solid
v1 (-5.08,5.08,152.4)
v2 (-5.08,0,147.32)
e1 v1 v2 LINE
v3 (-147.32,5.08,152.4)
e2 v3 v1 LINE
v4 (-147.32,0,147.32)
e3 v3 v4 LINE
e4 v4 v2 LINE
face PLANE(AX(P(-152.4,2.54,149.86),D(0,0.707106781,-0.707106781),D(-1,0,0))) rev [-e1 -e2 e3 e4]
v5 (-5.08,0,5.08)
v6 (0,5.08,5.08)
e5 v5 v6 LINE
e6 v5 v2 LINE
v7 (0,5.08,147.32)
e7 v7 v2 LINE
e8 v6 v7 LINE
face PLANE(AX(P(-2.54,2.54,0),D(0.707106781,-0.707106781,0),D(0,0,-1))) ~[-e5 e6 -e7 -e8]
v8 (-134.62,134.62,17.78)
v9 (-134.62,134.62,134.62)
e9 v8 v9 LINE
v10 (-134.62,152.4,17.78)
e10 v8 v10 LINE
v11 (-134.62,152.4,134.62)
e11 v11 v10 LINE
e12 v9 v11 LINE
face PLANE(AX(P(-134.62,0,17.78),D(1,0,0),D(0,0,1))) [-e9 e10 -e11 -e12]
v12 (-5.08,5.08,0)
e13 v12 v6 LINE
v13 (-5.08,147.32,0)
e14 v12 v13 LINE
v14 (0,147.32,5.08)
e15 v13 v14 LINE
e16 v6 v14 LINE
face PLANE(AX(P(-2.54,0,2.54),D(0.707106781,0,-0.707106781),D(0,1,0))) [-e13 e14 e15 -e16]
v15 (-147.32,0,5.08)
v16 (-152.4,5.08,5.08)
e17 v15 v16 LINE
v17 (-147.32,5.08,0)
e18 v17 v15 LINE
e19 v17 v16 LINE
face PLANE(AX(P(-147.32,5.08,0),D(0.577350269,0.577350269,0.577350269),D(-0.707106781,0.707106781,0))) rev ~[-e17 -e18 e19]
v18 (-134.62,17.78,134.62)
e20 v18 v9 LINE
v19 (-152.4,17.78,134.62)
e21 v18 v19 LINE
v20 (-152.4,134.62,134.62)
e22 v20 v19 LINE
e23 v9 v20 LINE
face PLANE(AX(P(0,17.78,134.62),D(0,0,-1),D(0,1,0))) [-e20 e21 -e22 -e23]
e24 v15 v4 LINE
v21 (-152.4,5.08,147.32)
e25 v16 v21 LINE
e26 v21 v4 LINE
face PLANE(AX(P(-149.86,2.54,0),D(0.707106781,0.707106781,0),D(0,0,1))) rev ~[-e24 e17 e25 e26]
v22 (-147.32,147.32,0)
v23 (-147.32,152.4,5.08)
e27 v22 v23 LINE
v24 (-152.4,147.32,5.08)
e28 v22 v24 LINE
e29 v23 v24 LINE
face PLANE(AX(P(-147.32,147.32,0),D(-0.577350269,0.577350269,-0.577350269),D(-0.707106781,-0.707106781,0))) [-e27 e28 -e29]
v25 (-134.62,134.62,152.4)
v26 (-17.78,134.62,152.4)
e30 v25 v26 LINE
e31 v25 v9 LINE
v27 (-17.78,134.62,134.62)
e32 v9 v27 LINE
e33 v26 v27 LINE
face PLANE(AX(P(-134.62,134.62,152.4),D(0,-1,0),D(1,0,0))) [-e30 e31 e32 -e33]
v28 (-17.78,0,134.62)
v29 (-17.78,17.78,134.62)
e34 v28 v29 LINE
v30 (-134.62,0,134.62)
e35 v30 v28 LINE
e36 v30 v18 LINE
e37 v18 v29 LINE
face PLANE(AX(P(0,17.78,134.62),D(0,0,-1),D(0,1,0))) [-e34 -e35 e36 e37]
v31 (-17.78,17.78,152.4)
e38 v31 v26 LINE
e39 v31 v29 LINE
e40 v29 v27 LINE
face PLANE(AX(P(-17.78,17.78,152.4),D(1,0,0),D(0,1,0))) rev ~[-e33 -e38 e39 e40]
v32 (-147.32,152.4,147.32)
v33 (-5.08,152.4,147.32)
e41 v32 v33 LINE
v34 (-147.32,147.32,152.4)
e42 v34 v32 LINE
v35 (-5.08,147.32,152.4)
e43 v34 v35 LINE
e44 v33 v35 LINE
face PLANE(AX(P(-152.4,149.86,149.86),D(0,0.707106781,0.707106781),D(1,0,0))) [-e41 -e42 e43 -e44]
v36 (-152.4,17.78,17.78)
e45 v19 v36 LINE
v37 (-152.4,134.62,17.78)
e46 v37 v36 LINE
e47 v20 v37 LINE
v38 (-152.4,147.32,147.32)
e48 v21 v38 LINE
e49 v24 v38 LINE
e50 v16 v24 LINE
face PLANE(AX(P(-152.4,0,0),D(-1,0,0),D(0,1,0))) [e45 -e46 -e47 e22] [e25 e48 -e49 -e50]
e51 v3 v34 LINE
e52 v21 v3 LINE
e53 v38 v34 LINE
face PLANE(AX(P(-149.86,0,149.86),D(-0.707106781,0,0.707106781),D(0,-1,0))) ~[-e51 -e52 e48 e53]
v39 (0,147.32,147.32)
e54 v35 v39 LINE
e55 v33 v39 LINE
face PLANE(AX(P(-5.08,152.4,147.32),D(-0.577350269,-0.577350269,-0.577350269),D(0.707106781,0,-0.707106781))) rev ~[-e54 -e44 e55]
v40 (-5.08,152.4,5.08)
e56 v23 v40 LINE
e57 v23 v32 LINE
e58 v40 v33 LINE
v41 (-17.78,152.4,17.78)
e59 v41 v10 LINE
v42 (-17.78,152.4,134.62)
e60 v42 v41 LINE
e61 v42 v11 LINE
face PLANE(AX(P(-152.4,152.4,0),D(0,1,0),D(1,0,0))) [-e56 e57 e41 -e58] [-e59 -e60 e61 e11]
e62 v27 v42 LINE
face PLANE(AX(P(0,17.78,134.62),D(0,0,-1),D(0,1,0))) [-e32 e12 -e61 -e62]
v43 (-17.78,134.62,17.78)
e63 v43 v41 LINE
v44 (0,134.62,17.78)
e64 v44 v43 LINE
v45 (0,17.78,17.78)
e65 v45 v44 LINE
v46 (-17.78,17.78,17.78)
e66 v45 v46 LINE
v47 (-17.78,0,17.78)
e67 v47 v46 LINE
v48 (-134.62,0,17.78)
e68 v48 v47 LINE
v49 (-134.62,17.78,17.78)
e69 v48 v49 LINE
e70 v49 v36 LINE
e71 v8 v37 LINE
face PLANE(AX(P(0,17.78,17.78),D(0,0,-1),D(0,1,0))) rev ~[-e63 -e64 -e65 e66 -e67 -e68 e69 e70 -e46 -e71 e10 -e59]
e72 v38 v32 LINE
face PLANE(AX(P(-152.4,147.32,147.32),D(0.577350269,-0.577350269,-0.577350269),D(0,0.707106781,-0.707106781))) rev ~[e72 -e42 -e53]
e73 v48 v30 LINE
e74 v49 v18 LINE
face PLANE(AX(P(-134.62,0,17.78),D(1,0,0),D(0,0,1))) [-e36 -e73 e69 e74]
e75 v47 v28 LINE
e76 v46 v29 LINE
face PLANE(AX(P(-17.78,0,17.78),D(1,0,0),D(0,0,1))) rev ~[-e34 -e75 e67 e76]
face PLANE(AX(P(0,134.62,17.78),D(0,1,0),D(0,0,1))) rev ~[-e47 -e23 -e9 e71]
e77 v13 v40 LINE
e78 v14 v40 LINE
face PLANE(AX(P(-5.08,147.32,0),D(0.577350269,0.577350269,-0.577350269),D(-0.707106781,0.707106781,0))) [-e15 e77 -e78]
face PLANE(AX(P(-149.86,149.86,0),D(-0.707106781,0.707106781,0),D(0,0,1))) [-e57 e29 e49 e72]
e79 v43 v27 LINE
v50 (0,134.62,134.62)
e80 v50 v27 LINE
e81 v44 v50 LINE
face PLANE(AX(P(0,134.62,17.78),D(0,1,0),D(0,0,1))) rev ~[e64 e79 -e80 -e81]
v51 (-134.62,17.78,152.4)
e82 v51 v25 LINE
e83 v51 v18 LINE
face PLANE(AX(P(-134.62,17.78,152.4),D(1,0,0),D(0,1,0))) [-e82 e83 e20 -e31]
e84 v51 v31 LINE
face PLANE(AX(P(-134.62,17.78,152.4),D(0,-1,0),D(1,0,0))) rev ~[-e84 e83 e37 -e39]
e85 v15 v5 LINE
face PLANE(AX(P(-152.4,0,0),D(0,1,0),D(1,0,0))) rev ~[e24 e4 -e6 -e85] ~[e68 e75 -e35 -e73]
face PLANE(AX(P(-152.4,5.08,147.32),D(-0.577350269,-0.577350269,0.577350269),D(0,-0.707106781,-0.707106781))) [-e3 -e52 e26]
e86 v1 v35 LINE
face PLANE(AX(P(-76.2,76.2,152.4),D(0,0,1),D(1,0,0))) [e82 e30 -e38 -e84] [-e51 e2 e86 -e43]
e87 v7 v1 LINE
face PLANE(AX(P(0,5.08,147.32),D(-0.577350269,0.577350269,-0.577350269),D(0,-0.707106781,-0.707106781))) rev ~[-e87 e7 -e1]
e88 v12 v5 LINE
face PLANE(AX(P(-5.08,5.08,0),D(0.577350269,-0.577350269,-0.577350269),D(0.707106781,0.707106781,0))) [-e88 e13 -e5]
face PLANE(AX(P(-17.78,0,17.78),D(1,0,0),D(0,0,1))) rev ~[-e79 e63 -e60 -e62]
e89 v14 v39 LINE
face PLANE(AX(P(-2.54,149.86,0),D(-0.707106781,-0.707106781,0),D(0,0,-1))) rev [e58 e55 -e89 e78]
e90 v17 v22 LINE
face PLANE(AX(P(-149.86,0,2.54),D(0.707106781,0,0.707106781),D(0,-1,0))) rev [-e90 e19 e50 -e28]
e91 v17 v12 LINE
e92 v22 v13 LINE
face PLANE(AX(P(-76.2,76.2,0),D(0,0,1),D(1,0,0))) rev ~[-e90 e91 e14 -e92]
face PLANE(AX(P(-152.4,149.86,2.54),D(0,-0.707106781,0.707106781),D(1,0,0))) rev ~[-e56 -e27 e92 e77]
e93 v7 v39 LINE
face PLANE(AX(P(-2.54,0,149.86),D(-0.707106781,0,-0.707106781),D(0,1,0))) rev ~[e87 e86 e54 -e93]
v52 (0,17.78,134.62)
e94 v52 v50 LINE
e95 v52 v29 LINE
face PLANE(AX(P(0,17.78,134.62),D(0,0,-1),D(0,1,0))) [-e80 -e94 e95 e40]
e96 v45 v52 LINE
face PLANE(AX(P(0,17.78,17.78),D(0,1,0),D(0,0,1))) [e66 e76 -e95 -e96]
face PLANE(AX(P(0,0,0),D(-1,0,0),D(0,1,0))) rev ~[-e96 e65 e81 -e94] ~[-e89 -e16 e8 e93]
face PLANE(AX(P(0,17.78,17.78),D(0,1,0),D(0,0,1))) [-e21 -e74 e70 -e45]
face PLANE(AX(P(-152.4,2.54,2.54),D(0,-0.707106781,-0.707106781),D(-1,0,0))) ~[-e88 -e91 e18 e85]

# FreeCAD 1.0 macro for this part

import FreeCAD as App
import Part
import Sketcher
from FreeCAD import Vector
Q = App.Units.Quantity


def edges_at(feature, points):
    """Names of the edges that pass closest to the given points."""
    edges = feature.Shape.Edges
    near = lambda p: min(range(len(edges)), key=lambda i: edges[i].distToShape(Part.Vertex(*p))[0])
    return sorted({f"Edge{near(p) + 1}" for p in points})

doc = App.newDocument("Part")
params = doc.addObject("Spreadsheet::Sheet", "Params")
for row, (alias, value) in enumerate([
    ("sketch1_width", "6 in"),
    ("pad1_length", "6 in"),
    ("sketch2_width", "4.6 in"),
    ("sketch3_width", "4.6 in"),
    ("sketch4_width", "4.6 in"),
    ("pocket3_length", "0.7 in"),
    ("chamfer_size", "0.2 in"),
], start=1):
    params.set(f"A{row}", alias)
    params.set(f"B{row}", "=" + value)
    params.setAlias(f"B{row}", alias)

body = doc.addObject("PartDesign::Body", "Body")

sketch1 = doc.addObject("Sketcher::SketchObject", "Sketch")
body.addObject(sketch1)
sketch1.AttachmentSupport = (doc.XY_Plane, [""])
sketch1.MapMode = "FlatFace"
sketch1.addGeometry(Part.LineSegment(Vector(-152, 152, 0), Vector(-152, 0, 0)), False)
sketch1.addGeometry(Part.LineSegment(Vector(-152, 0, 0), Vector(0, 0, 0)), False)
sketch1.addGeometry(Part.LineSegment(Vector(0, 0, 0), Vector(0, 152, 0)), False)
sketch1.addGeometry(Part.LineSegment(Vector(0, 152, 0), Vector(-152, 152, 0)), False)
sketch1.addConstraint(Sketcher.Constraint("Coincident", 0, 2, 1, 1))
sketch1.addConstraint(Sketcher.Constraint("Coincident", 1, 2, 2, 1))
sketch1.addConstraint(Sketcher.Constraint("Coincident", 2, 2, 3, 1))
sketch1.addConstraint(Sketcher.Constraint("Coincident", 3, 2, 0, 1))
sketch1.addConstraint(Sketcher.Constraint("Vertical", 0))
sketch1.addConstraint(Sketcher.Constraint("Horizontal", 1))
sketch1.addConstraint(Sketcher.Constraint("Vertical", 2))
sketch1.addConstraint(Sketcher.Constraint("Horizontal", 3))
sketch1.addConstraint(Sketcher.Constraint("Coincident", 1, 2, -1, 1))
sketch1.addConstraint(Sketcher.Constraint("Equal", 3, 0))
sketch1.addConstraint(Sketcher.Constraint("DistanceX", 1, 1, 1, 2, Q("6 in")))
sketch1.setExpression("Constraints[10]", "Params.sketch1_width")
pad1 = doc.addObject("PartDesign::Pad", "Pad")
body.addObject(pad1)
pad1.Profile = sketch1
pad1.setExpression("Length", "Params.pad1_length")

sketch2 = doc.addObject("Sketcher::SketchObject", "Sketch001")
body.addObject(sketch2)
sketch2.AttachmentSupport = (doc.XZ_Plane, [""])
sketch2.MapMode = "FlatFace"
sketch2.addGeometry(Part.LineSegment(Vector(-135, 135, 0), Vector(-135, 18, 0)), False)
sketch2.addGeometry(Part.LineSegment(Vector(-135, 18, 0), Vector(-18, 18, 0)), False)
sketch2.addGeometry(Part.LineSegment(Vector(-18, 18, 0), Vector(-18, 135, 0)), False)
sketch2.addGeometry(Part.LineSegment(Vector(-18, 135, 0), Vector(-135, 135, 0)), False)
sketch2.addConstraint(Sketcher.Constraint("Coincident", 0, 2, 1, 1))
sketch2.addConstraint(Sketcher.Constraint("Coincident", 1, 2, 2, 1))
sketch2.addConstraint(Sketcher.Constraint("Coincident", 2, 2, 3, 1))
sketch2.addConstraint(Sketcher.Constraint("Coincident", 3, 2, 0, 1))
sketch2.addConstraint(Sketcher.Constraint("Vertical", 0))
sketch2.addConstraint(Sketcher.Constraint("Horizontal", 1))
sketch2.addConstraint(Sketcher.Constraint("Vertical", 2))
sketch2.addConstraint(Sketcher.Constraint("Horizontal", 3))
sketch2.addConstraint(Sketcher.Constraint("Equal", 3, 0))
sketch2.addConstraint(Sketcher.Constraint("DistanceX", 1, 1, 1, 2, Q("4.6 in")))
sketch2.addConstraint(Sketcher.Constraint("DistanceX", 0, 2, -1, 1, Q("5.3 in")))
sketch2.addConstraint(Sketcher.Constraint("DistanceY", -1, 1, 0, 2, Q("0.7 in")))
sketch2.setExpression("Constraints[9]", "Params.sketch2_width")
pocket1 = doc.addObject("PartDesign::Pocket", "Pocket")
body.addObject(pocket1)
pocket1.Profile = sketch2
pocket1.Type = "ThroughAll"

sketch3 = doc.addObject("Sketcher::SketchObject", "Sketch002")
body.addObject(sketch3)
sketch3.AttachmentSupport = (doc.YZ_Plane, [""])
sketch3.MapMode = "FlatFace"
sketch3.addGeometry(Part.LineSegment(Vector(18, 135, 0), Vector(18, 18, 0)), False)
sketch3.addGeometry(Part.LineSegment(Vector(18, 18, 0), Vector(135, 18, 0)), False)
sketch3.addGeometry(Part.LineSegment(Vector(135, 18, 0), Vector(135, 135, 0)), False)
sketch3.addGeometry(Part.LineSegment(Vector(135, 135, 0), Vector(18, 135, 0)), False)
sketch3.addConstraint(Sketcher.Constraint("Coincident", 0, 2, 1, 1))
sketch3.addConstraint(Sketcher.Constraint("Coincident", 1, 2, 2, 1))
sketch3.addConstraint(Sketcher.Constraint("Coincident", 2, 2, 3, 1))
sketch3.addConstraint(Sketcher.Constraint("Coincident", 3, 2, 0, 1))
sketch3.addConstraint(Sketcher.Constraint("Vertical", 0))
sketch3.addConstraint(Sketcher.Constraint("Horizontal", 1))
sketch3.addConstraint(Sketcher.Constraint("Vertical", 2))
sketch3.addConstraint(Sketcher.Constraint("Horizontal", 3))
sketch3.addConstraint(Sketcher.Constraint("Equal", 3, 0))
sketch3.addConstraint(Sketcher.Constraint("DistanceX", 1, 1, 1, 2, Q("4.6 in")))
sketch3.addConstraint(Sketcher.Constraint("DistanceX", -1, 1, 0, 2, Q("0.7 in")))
sketch3.addConstraint(Sketcher.Constraint("DistanceY", -1, 1, 0, 2, Q("0.7 in")))
sketch3.setExpression("Constraints[9]", "Params.sketch3_width")
pocket2 = doc.addObject("PartDesign::Pocket", "Pocket001")
body.addObject(pocket2)
pocket2.Profile = sketch3
pocket2.Type = "ThroughAll"

sketch4 = doc.addObject("Sketcher::SketchObject", "Sketch003")
body.addObject(sketch4)
sketch4.AttachmentSupport = (doc.XY_Plane, [""])
sketch4.MapMode = "FlatFace"
sketch4.AttachmentOffset = App.Placement(Vector(0, 0, 6 * 25.4), App.Rotation())
sketch4.addGeometry(Part.LineSegment(Vector(-135, 135, 0), Vector(-135, 18, 0)), False)
sketch4.addGeometry(Part.LineSegment(Vector(-135, 18, 0), Vector(-18, 18, 0)), False)
sketch4.addGeometry(Part.LineSegment(Vector(-18, 18, 0), Vector(-18, 135, 0)), False)
sketch4.addGeometry(Part.LineSegment(Vector(-18, 135, 0), Vector(-135, 135, 0)), False)
sketch4.addConstraint(Sketcher.Constraint("Coincident", 0, 2, 1, 1))
sketch4.addConstraint(Sketcher.Constraint("Coincident", 1, 2, 2, 1))
sketch4.addConstraint(Sketcher.Constraint("Coincident", 2, 2, 3, 1))
sketch4.addConstraint(Sketcher.Constraint("Coincident", 3, 2, 0, 1))
sketch4.addConstraint(Sketcher.Constraint("Vertical", 0))
sketch4.addConstraint(Sketcher.Constraint("Horizontal", 1))
sketch4.addConstraint(Sketcher.Constraint("Vertical", 2))
sketch4.addConstraint(Sketcher.Constraint("Horizontal", 3))
sketch4.addConstraint(Sketcher.Constraint("Equal", 3, 0))
sketch4.addConstraint(Sketcher.Constraint("DistanceX", 1, 1, 1, 2, Q("4.6 in")))
sketch4.addConstraint(Sketcher.Constraint("DistanceX", 0, 2, -1, 1, Q("5.3 in")))
sketch4.addConstraint(Sketcher.Constraint("DistanceY", -1, 1, 0, 2, Q("0.7 in")))
sketch4.setExpression("Constraints[9]", "Params.sketch4_width")
pocket3 = doc.addObject("PartDesign::Pocket", "Pocket002")
body.addObject(pocket3)
pocket3.Profile = sketch4
pocket3.setExpression("Length", "Params.pocket3_length")
doc.recompute()

chamfer = doc.addObject("PartDesign::Chamfer", "Chamfer")
body.addObject(chamfer)
chamfer.Base = (pocket3, edges_at(pocket3, [
    (-76.2, 0, 152.4),
    (0, 76.2, 152.4),
    (0, 0, 76.2),
    (-76.2, 152.4, 152.4),
    (-152.4, 76.2, 152.4),
    (0, 152.4, 76.2),
    (-152.4, 152.4, 76.2),
    (-152.4, 0, 76.2),
    (-76.2, 0, 0),
    (0, 76.2, 0),
    (-76.2, 152.4, 0),
    (-152.4, 76.2, 0),
]))
chamfer.setExpression("Size", "Params.chamfer_size")

doc.recompute()
